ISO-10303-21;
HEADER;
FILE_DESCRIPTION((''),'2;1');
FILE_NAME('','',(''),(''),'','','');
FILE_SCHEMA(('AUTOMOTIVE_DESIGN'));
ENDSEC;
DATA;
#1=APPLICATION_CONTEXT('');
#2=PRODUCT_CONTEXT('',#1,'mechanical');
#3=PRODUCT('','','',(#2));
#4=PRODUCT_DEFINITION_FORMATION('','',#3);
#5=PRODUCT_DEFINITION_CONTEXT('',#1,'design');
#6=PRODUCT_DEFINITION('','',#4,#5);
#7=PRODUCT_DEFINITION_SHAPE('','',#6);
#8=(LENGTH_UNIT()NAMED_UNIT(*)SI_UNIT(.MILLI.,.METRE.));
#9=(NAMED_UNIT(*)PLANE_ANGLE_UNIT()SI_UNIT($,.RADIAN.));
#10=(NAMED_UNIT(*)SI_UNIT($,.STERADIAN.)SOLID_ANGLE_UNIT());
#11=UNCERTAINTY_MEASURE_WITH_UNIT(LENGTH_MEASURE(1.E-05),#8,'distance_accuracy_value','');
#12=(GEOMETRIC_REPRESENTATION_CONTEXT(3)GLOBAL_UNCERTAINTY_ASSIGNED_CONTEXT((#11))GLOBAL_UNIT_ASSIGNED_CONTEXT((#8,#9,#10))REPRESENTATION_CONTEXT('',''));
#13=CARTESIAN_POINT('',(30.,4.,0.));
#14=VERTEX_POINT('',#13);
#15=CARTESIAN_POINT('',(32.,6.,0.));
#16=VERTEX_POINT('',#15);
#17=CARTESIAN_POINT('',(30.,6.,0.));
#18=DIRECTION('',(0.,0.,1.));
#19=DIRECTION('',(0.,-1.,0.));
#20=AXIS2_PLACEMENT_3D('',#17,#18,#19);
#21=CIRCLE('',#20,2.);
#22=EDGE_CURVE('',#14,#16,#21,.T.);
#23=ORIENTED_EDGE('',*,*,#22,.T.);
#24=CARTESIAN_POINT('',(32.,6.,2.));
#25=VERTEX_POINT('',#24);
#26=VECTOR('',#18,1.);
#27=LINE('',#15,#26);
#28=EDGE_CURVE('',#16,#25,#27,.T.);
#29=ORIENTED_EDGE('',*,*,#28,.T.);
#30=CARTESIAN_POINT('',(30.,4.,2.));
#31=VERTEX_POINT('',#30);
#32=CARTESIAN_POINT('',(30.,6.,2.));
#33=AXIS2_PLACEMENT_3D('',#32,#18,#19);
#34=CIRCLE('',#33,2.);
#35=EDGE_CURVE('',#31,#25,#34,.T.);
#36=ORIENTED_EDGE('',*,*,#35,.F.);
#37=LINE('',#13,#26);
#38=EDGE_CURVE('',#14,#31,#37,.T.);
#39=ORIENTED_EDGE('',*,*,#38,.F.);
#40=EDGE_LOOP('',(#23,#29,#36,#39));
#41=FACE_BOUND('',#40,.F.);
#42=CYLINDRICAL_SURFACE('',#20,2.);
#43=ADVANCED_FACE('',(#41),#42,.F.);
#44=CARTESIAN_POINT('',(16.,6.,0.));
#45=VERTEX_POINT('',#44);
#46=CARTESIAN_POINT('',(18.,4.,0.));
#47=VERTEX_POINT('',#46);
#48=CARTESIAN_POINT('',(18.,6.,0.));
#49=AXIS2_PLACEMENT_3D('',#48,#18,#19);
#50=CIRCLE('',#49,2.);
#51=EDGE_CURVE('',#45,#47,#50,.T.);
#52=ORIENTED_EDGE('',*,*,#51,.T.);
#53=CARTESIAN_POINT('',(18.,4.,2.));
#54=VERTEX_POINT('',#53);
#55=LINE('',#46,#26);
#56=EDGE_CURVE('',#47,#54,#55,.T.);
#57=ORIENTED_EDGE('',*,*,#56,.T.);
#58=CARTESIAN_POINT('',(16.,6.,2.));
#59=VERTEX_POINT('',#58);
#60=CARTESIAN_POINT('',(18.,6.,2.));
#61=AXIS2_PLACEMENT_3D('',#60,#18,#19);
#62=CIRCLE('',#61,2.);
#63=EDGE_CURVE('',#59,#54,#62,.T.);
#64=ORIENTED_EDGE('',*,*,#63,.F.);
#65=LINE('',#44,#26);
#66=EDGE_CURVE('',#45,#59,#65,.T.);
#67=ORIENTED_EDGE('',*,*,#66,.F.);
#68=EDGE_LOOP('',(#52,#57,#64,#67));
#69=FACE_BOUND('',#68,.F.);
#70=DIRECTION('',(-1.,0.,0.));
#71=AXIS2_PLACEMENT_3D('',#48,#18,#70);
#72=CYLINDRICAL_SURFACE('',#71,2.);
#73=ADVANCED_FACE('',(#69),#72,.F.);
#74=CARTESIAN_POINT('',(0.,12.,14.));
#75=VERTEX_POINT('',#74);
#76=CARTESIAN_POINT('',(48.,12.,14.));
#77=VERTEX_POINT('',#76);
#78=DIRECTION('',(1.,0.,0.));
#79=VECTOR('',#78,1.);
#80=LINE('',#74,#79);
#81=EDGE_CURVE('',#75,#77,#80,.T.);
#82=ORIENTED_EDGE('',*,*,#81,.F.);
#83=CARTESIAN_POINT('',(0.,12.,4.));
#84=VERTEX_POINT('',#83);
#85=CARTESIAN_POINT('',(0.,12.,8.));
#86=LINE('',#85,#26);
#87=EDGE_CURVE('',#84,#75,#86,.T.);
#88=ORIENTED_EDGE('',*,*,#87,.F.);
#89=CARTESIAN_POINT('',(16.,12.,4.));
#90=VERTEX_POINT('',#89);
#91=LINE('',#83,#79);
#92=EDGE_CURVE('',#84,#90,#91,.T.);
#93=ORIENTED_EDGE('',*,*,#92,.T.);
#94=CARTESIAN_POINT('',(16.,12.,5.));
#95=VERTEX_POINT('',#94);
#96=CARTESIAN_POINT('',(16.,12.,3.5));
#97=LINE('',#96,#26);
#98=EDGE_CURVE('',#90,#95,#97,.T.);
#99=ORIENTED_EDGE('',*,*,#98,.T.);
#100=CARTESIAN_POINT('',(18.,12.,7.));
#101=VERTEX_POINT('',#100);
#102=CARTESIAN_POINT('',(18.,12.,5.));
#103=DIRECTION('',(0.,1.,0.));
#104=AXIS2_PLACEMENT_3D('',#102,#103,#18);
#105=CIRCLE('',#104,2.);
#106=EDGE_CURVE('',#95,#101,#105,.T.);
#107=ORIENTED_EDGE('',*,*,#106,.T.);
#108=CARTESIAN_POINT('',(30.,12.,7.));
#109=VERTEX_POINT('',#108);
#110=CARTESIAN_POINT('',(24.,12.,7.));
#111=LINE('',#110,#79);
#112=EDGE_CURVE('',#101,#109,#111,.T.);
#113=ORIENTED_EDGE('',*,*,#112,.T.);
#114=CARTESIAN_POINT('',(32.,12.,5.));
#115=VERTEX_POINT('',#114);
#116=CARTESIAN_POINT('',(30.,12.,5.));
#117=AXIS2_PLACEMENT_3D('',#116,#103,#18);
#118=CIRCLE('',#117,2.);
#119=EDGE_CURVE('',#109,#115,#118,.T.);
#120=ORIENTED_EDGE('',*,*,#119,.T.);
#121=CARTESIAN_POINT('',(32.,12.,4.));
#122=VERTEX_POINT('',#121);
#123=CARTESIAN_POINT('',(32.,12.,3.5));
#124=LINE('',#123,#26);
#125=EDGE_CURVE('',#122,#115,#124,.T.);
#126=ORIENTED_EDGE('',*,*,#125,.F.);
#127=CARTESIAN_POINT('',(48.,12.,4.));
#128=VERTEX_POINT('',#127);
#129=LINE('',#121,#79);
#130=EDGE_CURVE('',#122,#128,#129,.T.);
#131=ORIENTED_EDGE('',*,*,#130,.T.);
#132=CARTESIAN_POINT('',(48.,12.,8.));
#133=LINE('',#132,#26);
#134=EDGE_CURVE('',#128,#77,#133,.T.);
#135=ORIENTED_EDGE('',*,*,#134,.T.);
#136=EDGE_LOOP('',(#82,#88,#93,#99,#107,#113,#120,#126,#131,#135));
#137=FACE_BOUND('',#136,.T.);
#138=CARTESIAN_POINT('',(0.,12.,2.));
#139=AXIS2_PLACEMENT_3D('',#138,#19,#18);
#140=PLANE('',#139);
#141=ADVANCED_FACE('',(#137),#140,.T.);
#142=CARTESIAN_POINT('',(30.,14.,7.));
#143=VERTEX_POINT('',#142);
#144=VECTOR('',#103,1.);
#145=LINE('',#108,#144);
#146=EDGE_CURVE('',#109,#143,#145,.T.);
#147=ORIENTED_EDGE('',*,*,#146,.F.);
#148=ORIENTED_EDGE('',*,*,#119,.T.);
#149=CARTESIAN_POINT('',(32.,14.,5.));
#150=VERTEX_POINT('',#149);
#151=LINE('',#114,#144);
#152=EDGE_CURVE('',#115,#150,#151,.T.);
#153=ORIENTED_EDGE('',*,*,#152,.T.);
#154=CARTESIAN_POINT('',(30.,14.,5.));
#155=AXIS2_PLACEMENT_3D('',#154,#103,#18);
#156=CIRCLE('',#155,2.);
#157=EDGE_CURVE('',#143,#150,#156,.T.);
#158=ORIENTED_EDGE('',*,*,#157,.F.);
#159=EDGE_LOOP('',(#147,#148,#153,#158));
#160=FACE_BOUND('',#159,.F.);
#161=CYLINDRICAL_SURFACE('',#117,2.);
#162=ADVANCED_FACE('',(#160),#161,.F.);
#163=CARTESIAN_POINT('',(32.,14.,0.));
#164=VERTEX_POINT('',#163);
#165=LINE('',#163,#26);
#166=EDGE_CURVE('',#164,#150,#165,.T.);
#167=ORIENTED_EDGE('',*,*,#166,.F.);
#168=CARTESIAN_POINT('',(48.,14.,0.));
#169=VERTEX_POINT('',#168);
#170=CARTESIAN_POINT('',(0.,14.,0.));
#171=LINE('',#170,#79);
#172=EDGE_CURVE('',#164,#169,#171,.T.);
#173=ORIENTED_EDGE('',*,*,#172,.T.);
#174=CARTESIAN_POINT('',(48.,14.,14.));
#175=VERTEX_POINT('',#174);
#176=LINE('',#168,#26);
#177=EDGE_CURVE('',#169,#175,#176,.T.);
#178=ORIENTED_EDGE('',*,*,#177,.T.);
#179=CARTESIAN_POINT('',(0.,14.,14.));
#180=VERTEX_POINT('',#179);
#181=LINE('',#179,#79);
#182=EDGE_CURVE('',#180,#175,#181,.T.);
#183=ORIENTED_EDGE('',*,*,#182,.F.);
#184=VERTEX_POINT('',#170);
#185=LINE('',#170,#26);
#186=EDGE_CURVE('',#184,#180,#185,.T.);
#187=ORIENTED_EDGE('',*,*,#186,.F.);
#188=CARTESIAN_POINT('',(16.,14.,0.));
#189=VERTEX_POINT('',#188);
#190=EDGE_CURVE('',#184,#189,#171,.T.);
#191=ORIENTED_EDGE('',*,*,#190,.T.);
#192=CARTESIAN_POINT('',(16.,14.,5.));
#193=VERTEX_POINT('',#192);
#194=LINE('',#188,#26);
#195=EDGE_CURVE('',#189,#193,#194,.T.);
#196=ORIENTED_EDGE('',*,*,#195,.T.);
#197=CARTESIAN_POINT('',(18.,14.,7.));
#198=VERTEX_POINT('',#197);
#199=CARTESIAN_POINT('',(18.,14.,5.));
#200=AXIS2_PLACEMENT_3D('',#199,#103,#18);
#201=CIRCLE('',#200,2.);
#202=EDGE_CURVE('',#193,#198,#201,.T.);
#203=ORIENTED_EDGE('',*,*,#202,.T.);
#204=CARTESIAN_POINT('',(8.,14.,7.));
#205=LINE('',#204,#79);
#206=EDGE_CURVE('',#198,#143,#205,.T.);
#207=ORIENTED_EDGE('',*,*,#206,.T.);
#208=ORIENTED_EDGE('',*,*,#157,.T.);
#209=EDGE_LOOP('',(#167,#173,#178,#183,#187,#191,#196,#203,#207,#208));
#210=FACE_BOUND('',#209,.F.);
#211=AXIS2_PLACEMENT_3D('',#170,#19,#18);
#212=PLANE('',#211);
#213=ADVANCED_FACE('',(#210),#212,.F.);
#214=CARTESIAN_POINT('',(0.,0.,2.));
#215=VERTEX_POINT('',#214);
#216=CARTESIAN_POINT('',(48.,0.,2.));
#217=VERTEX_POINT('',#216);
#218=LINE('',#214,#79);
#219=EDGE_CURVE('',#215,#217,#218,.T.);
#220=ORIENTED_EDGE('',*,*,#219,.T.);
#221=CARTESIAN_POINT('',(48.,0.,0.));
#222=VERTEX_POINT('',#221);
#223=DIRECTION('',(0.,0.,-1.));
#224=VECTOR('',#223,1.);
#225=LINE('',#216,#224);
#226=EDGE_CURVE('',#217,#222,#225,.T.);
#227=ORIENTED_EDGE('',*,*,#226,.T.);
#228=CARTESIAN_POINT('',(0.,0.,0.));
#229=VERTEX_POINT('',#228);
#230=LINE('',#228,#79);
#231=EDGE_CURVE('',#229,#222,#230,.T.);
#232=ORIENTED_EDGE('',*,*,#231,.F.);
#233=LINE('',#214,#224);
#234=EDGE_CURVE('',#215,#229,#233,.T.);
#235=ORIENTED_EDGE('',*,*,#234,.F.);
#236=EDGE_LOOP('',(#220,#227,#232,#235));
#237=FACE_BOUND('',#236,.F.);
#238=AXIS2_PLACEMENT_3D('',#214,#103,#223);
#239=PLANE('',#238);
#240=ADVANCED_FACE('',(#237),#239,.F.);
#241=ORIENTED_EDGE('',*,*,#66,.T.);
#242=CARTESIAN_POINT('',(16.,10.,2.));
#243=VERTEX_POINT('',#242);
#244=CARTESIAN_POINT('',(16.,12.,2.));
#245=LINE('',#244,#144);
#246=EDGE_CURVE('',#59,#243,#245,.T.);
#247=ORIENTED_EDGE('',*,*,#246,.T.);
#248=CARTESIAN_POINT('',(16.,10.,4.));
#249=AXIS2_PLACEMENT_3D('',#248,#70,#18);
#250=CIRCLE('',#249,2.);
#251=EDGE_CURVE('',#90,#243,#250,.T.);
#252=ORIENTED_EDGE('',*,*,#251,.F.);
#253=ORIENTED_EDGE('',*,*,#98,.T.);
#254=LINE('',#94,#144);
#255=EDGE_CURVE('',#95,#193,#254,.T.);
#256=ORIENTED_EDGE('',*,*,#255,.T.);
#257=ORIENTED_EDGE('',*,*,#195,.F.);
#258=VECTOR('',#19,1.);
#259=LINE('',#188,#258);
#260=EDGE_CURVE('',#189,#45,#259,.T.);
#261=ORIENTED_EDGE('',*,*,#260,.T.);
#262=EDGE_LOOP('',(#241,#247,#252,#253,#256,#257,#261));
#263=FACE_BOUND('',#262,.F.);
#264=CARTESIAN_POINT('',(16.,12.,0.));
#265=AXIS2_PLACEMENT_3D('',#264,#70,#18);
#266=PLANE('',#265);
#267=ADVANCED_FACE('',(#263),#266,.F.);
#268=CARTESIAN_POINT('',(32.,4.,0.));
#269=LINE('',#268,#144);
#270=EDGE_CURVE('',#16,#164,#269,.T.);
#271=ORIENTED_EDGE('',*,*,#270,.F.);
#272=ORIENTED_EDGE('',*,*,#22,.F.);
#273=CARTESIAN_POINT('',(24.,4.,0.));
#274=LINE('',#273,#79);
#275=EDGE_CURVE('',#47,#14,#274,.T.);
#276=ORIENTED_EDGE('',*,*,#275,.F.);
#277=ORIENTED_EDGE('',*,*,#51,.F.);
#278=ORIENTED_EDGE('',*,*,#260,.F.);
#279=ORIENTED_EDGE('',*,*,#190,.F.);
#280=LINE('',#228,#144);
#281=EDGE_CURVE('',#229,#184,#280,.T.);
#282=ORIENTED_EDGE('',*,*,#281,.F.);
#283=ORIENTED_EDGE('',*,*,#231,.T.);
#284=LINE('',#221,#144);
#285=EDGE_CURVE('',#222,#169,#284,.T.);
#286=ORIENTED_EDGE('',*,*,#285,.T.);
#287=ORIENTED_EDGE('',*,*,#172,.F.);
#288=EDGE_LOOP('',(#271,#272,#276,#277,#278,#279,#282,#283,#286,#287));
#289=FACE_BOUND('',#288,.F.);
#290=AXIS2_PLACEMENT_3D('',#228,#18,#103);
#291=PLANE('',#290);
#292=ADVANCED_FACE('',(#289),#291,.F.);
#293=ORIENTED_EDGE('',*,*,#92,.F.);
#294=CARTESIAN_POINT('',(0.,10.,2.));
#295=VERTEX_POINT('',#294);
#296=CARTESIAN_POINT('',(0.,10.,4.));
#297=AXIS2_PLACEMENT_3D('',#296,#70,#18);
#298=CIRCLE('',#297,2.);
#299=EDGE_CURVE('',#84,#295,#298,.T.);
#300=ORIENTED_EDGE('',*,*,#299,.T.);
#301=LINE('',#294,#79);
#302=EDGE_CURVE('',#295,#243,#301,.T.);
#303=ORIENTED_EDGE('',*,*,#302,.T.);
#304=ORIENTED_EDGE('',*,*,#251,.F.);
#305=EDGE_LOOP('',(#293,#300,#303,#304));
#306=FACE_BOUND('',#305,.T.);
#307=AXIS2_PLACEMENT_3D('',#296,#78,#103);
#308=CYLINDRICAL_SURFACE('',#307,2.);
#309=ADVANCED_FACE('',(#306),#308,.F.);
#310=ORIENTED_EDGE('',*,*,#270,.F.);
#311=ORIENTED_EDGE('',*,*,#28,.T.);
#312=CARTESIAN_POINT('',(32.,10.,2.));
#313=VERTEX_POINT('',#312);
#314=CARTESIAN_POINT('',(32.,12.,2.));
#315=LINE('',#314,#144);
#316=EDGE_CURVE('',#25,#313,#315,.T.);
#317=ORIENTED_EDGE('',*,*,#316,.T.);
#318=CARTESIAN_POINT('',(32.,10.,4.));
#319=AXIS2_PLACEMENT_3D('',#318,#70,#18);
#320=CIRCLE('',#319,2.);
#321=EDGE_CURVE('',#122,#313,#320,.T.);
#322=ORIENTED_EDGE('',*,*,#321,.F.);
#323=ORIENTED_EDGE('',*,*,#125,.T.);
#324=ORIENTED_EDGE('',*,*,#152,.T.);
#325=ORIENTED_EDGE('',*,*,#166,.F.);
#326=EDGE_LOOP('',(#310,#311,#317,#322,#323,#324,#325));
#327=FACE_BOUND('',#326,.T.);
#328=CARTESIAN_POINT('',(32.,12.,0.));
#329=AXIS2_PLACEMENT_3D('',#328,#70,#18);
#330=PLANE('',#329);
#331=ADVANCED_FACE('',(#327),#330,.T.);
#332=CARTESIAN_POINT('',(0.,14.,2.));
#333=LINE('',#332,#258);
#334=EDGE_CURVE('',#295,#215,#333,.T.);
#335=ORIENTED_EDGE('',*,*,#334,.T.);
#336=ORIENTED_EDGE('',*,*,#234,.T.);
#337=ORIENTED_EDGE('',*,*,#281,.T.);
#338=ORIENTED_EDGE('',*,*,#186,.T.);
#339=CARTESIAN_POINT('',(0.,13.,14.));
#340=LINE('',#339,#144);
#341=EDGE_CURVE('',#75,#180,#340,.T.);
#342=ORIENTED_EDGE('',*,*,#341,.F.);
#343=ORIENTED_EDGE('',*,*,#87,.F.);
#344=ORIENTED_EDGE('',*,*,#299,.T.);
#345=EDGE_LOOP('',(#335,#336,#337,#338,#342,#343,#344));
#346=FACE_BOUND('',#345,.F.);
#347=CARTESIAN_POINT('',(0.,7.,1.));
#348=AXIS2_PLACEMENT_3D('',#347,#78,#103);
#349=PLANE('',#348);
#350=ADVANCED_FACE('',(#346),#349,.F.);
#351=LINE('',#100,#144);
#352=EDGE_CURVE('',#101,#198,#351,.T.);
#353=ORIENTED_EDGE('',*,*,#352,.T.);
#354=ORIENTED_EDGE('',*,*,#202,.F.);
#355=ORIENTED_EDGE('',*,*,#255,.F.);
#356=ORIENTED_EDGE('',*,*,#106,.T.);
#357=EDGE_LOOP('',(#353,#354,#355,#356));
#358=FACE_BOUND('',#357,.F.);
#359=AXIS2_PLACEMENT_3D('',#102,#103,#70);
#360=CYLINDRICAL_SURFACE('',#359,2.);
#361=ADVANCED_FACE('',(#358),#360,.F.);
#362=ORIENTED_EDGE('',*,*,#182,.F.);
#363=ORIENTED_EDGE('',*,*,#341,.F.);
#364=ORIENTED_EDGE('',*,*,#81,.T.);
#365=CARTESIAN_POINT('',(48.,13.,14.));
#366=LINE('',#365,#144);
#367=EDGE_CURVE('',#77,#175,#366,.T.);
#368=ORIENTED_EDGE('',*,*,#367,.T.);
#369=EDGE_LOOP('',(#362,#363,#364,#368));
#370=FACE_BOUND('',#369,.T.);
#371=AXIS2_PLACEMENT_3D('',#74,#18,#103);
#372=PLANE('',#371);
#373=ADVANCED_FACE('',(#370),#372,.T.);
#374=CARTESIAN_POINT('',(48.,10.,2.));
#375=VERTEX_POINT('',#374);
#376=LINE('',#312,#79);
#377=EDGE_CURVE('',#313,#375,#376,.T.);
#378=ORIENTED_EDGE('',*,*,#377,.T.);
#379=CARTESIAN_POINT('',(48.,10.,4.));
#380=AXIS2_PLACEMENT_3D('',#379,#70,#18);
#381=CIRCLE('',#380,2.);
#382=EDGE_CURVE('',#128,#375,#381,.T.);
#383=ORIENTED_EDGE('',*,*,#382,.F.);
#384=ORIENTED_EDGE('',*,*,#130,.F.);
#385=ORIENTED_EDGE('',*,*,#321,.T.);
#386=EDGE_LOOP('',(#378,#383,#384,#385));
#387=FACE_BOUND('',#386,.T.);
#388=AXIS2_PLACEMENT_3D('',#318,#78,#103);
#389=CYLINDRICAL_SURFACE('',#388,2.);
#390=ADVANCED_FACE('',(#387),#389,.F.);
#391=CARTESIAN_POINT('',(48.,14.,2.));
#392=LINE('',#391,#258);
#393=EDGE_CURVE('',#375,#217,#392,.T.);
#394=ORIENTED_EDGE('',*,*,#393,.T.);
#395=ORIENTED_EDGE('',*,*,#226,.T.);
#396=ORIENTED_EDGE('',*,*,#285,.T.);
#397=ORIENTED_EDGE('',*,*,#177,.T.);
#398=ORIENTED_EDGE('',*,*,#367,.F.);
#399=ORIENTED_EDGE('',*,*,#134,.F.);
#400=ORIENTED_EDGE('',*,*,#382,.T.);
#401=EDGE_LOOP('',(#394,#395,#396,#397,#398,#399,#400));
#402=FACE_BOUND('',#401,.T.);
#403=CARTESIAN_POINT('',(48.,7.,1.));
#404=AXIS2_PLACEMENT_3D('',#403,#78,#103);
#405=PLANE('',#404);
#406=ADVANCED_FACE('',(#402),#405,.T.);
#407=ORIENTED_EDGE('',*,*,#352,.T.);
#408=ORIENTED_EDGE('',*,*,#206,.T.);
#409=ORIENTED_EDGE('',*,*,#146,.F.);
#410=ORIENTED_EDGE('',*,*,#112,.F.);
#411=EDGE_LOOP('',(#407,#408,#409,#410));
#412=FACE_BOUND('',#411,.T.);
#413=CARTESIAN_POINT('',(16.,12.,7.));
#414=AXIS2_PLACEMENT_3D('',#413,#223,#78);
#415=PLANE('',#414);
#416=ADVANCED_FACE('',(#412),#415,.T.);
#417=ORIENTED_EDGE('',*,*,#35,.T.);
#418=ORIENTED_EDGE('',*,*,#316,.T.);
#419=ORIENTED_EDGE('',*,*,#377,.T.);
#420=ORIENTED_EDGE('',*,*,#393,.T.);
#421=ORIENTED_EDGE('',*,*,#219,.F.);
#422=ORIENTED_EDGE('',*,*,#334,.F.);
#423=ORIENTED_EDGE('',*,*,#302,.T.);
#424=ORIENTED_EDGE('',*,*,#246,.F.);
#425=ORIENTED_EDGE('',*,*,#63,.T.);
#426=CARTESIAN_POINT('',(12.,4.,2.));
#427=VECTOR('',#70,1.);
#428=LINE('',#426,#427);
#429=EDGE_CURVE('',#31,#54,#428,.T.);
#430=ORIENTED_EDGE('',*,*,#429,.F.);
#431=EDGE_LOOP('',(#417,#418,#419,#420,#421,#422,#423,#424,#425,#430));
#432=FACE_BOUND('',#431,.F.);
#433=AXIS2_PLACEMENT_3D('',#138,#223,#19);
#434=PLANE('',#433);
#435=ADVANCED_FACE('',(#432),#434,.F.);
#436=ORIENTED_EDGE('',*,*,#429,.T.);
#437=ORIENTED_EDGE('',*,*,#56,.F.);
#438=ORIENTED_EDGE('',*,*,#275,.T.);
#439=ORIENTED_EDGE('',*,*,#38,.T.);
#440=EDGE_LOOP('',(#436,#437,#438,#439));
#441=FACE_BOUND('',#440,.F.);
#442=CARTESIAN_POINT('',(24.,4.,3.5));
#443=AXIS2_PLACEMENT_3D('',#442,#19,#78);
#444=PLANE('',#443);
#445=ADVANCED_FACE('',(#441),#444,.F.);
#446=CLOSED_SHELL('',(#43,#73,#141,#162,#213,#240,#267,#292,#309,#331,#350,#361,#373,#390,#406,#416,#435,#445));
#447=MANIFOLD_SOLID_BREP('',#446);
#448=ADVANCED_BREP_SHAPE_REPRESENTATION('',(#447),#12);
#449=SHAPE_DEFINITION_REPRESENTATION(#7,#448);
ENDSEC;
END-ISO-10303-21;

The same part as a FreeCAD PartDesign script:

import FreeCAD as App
import Part
import Sketcher

V = App.Vector


def edges_at(feature, points):
    """Names of the edges that pass closest to the given points."""
    edges = feature.Shape.Edges
    near = lambda p: min(range(len(edges)), key=lambda i: edges[i].distToShape(Part.Vertex(*p))[0])
    return sorted({f"Edge{near(p) + 1}" for p in points})

doc = App.newDocument("Part")
body = doc.addObject("PartDesign::Body", "Body")

# Sketch on YZ plane
sketch1 = doc.addObject("Sketcher::SketchObject", "Sketch")
body.addObject(sketch1)
sketch1.AttachmentSupport = (doc.YZ_Plane, [""])
sketch1.MapMode = "FlatFace"
sketch1.addGeometry(Part.LineSegment(V(0, 2, 0), V(0, 0, 0)), False)
sketch1.addGeometry(Part.LineSegment(V(0, 0, 0), V(14, 0, 0)), False)
sketch1.addGeometry(Part.LineSegment(V(14, 0, 0), V(14, 14, 0)), False)
sketch1.addGeometry(Part.LineSegment(V(14, 14, 0), V(12, 14, 0)), False)
sketch1.addGeometry(Part.LineSegment(V(12, 14, 0), V(12, 2, 0)), False)
sketch1.addGeometry(Part.LineSegment(V(12, 2, 0), V(0, 2, 0)), False)
sketch1.addConstraint(Sketcher.Constraint("Coincident", 0, 2, 1, 1))
sketch1.addConstraint(Sketcher.Constraint("Coincident", 1, 2, 2, 1))
sketch1.addConstraint(Sketcher.Constraint("Coincident", 2, 2, 3, 1))
sketch1.addConstraint(Sketcher.Constraint("Coincident", 3, 2, 4, 1))
sketch1.addConstraint(Sketcher.Constraint("Coincident", 4, 2, 5, 1))
sketch1.addConstraint(Sketcher.Constraint("Coincident", 5, 2, 0, 1))
sketch1.addConstraint(Sketcher.Constraint("Vertical", 0))
sketch1.addConstraint(Sketcher.Constraint("Horizontal", 1))
sketch1.addConstraint(Sketcher.Constraint("Vertical", 2))
sketch1.addConstraint(Sketcher.Constraint("Horizontal", 3))
sketch1.addConstraint(Sketcher.Constraint("Vertical", 4))
sketch1.addConstraint(Sketcher.Constraint("Horizontal", 5))
sketch1.addConstraint(Sketcher.Constraint("Coincident", 0, 2, -1, 1))
sketch1.addConstraint(Sketcher.Constraint("Equal", 3, 0))
sketch1.addConstraint(Sketcher.Constraint("Equal", 1, 2))
sketch1.addConstraint(Sketcher.Constraint("DistanceX", 1, 1, 1, 2, 14.0))
sketch1.addConstraint(Sketcher.Constraint("DistanceX", 3, 2, 3, 1, 2.0))
pad1 = doc.addObject("PartDesign::Pad", "Pad")
body.addObject(pad1)
pad1.Profile = sketch1
pad1.Length = 48

# Sketch on XZ plane
sketch2 = doc.addObject("Sketcher::SketchObject", "Sketch001")
body.addObject(sketch2)
sketch2.AttachmentSupport = (doc.XZ_Plane, [""])
sketch2.MapMode = "FlatFace"
sketch2.AttachmentOffset = App.Placement(V(0, 0, -12), App.Rotation())
sketch2.addGeometry(Part.LineSegment(V(16, 7, 0), V(16, 0, 0)), False)
sketch2.addGeometry(Part.LineSegment(V(16, 0, 0), V(32, 0, 0)), False)
sketch2.addGeometry(Part.LineSegment(V(32, 0, 0), V(32, 7, 0)), False)
sketch2.addGeometry(Part.LineSegment(V(32, 7, 0), V(16, 7, 0)), False)
sketch2.addConstraint(Sketcher.Constraint("Coincident", 0, 2, 1, 1))
sketch2.addConstraint(Sketcher.Constraint("Coincident", 1, 2, 2, 1))
sketch2.addConstraint(Sketcher.Constraint("Coincident", 2, 2, 3, 1))
sketch2.addConstraint(Sketcher.Constraint("Coincident", 3, 2, 0, 1))
sketch2.addConstraint(Sketcher.Constraint("Vertical", 0))
sketch2.addConstraint(Sketcher.Constraint("Horizontal", 1))
sketch2.addConstraint(Sketcher.Constraint("Vertical", 2))
sketch2.addConstraint(Sketcher.Constraint("Horizontal", 3))
sketch2.addConstraint(Sketcher.Constraint("PointOnObject", 0, 2, -1))
sketch2.addConstraint(Sketcher.Constraint("DistanceX", 1, 1, 1, 2, 16.0))
sketch2.addConstraint(Sketcher.Constraint("DistanceY", 0, 2, 0, 1, 7.0))
sketch2.addConstraint(Sketcher.Constraint("DistanceX", -1, 1, 0, 2, 16.0))
pocket1 = doc.addObject("PartDesign::Pocket", "Pocket")
body.addObject(pocket1)
pocket1.Profile = sketch2
pocket1.Type = "TwoLengths"
pocket1.Length = 2.001
pocket1.Length2 = 8
doc.recompute()

fillet = doc.addObject("PartDesign::Fillet", "Fillet")
body.addObject(fillet)
fillet.Base = (pocket1, edges_at(pocket1, [
    (32, 4, 1),
    (16, 4, 1),
    (16, 13, 7),
    (32, 13, 7),
    (40, 12, 2),
    (8, 12, 2),
]))
fillet.Radius = 2

doc.recompute()
